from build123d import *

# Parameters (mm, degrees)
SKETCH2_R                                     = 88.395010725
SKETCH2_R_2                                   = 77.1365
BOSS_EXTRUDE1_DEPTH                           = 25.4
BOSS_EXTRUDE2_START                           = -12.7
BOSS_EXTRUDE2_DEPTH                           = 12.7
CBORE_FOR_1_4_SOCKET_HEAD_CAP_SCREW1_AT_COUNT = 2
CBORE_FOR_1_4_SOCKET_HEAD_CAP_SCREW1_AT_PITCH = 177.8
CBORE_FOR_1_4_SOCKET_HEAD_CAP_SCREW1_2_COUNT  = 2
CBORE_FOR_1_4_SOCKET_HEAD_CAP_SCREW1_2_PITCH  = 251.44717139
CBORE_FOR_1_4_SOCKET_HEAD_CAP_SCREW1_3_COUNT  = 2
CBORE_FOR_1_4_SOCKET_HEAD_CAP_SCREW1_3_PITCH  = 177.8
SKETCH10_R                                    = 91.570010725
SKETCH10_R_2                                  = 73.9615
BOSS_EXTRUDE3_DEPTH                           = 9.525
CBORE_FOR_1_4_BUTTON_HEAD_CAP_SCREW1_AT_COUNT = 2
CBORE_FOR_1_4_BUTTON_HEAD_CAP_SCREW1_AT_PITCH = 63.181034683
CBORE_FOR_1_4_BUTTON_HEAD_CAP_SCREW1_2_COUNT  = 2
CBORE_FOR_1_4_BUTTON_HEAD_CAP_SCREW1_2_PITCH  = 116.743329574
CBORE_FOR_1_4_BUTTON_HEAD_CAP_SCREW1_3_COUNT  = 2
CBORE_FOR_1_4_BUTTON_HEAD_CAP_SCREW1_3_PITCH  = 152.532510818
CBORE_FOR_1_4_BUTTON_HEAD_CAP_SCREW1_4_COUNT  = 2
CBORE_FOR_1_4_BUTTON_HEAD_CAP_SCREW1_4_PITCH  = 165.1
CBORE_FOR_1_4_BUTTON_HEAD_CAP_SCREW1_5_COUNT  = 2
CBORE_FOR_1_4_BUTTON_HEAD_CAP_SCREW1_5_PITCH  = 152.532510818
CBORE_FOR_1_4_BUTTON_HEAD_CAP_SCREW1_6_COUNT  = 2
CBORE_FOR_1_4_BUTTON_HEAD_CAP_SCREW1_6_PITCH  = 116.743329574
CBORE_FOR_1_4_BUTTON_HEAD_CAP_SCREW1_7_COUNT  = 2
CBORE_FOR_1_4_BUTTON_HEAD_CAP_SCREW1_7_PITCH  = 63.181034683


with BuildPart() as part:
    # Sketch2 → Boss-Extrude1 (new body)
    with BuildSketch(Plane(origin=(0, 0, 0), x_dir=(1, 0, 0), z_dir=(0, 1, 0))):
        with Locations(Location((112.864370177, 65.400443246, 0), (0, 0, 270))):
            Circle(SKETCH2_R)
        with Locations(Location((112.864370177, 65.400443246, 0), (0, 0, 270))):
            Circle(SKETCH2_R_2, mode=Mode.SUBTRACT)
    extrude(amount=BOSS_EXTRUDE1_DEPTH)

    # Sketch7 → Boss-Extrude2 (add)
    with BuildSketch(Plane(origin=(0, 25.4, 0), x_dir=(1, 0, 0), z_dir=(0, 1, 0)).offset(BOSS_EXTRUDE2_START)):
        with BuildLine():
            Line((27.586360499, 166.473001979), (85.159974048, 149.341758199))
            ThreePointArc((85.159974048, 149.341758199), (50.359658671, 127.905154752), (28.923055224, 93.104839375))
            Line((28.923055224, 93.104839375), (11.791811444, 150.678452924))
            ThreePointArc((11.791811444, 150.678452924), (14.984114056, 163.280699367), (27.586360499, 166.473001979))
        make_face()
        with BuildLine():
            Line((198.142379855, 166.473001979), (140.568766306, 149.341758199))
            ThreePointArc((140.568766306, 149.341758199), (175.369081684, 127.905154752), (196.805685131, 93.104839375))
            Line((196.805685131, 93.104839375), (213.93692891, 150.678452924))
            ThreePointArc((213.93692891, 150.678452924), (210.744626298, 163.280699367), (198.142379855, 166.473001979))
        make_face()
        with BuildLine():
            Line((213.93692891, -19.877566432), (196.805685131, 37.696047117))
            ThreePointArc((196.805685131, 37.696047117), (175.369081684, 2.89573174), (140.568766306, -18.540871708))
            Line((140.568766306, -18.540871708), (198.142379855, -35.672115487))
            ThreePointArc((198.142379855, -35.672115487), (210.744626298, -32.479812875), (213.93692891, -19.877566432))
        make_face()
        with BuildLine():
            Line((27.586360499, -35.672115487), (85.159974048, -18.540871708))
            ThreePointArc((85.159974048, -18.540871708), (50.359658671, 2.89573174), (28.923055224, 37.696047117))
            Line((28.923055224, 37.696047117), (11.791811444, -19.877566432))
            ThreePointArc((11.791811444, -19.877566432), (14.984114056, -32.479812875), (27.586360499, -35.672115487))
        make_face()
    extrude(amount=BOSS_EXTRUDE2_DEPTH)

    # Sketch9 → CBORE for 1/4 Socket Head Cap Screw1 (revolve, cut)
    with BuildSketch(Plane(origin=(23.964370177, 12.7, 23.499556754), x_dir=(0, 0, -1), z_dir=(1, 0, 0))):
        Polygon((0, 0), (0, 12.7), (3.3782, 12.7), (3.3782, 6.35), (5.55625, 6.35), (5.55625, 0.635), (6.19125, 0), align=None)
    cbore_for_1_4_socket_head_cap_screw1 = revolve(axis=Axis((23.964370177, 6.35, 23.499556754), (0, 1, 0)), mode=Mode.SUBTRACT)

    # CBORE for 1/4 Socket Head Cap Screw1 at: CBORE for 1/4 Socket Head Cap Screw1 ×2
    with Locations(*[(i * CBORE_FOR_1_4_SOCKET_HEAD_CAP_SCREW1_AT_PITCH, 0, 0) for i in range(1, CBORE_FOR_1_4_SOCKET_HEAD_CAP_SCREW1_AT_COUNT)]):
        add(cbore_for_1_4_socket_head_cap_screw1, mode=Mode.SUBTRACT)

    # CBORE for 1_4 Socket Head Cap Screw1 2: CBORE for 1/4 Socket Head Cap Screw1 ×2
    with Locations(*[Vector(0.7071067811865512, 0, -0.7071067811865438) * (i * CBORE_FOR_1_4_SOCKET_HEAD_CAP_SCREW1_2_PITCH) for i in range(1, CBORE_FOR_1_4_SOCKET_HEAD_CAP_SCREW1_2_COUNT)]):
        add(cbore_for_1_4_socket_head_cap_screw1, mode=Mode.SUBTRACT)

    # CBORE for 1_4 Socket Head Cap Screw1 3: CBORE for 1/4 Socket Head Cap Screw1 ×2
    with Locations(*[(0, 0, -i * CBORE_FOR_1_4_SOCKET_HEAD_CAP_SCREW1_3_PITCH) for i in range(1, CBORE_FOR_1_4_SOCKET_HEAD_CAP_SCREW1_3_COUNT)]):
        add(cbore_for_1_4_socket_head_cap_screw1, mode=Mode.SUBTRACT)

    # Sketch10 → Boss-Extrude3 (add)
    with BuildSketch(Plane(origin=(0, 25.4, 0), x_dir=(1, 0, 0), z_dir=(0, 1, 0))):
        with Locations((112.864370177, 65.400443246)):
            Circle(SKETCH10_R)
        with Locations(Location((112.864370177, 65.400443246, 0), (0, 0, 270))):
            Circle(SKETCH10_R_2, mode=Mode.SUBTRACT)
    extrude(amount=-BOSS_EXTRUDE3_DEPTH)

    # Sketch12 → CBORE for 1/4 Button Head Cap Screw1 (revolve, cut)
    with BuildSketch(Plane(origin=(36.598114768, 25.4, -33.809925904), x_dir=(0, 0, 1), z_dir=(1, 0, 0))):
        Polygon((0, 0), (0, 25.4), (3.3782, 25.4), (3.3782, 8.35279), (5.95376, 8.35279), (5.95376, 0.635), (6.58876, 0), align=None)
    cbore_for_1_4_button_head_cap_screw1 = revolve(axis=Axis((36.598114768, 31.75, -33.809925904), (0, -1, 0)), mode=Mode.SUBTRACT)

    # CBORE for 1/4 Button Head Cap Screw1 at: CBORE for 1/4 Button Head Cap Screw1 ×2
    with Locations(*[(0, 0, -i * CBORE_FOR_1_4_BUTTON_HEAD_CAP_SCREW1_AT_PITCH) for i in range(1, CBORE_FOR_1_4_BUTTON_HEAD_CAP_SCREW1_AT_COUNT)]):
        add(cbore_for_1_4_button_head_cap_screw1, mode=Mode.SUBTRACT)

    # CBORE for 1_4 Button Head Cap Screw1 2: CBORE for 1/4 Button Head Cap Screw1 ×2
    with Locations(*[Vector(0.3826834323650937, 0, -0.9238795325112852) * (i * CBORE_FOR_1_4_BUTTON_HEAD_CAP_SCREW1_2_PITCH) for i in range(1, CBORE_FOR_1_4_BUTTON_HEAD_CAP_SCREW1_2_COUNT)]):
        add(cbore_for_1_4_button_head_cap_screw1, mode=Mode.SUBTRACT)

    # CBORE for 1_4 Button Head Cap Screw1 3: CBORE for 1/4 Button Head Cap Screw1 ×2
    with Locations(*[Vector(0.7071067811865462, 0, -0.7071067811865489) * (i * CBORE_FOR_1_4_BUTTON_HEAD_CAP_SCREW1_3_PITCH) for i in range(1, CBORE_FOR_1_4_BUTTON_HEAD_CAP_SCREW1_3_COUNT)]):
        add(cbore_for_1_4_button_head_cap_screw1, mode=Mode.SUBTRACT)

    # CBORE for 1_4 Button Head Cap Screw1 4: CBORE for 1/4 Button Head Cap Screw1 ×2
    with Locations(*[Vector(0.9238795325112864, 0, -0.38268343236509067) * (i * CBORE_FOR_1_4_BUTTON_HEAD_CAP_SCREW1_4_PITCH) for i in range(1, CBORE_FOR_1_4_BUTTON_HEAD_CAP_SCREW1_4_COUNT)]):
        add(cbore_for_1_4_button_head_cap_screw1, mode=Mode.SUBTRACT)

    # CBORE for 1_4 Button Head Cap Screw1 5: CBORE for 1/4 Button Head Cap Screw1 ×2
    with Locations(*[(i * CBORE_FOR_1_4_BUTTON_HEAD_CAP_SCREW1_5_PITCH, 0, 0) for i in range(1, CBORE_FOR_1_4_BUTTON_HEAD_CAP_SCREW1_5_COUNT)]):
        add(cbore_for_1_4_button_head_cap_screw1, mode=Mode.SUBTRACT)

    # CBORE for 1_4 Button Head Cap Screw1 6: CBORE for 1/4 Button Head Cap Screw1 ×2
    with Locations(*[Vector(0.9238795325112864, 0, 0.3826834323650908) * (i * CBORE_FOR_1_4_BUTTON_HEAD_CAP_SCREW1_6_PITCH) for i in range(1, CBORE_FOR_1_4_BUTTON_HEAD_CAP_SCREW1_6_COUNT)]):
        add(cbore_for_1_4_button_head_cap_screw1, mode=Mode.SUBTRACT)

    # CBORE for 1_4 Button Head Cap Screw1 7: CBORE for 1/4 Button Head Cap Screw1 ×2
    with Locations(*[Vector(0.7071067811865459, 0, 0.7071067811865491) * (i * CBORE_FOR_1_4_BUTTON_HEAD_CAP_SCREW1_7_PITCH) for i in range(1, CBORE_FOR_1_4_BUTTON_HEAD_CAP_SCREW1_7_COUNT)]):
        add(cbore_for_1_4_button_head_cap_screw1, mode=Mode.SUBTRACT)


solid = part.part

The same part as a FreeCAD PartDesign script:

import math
import FreeCAD as App
import Part
import Sketcher
Q = App.Units.Quantity


def add_polygon(sketch, points):
    """Adds a closed chain of lines whose ends are joined by coincident constraints."""
    first, n = sketch.GeometryCount, len(points)
    for a, b in zip(points, points[1:] + points[:1]):
        sketch.addGeometry(Part.LineSegment(App.Vector(*a, 0), App.Vector(*b, 0)), False)
    for i in range(n):
        sketch.addConstraint(Sketcher.Constraint("Coincident", first + i, 2, first + (i + 1) % n, 1))

doc = App.newDocument("Part")
body = doc.addObject("PartDesign::Body", "Body")

sketch1 = doc.addObject("Sketcher::SketchObject", "Sketch")
body.addObject(sketch1)
sketch1.AttachmentSupport = (doc.XZ_Plane, [""])
sketch1.MapMode = "FlatFace"
sketch1.addGeometry(Part.Circle(App.Vector(113, -65, 0), App.Vector(0, 0, 1), 88), False)
sketch1.addGeometry(Part.Circle(App.Vector(113, -65, 0), App.Vector(0, 0, 1), 77), False)
sketch1.addConstraint(Sketcher.Constraint("Coincident", 1, 3, 0, 3))
sketch1.addConstraint(Sketcher.Constraint("Diameter", 1, Q("154.273 mm")))
sketch1.addConstraint(Sketcher.Constraint("Diameter", 0, Q("176.790021 mm")))
sketch1.addConstraint(Sketcher.Constraint("DistanceX", -1, 1, 0, 3, Q("112.86437 mm")))
sketch1.addConstraint(Sketcher.Constraint("DistanceY", 0, 3, -1, 1, Q("65.400443 mm")))
pad1 = doc.addObject("PartDesign::Pad", "Pad")
body.addObject(pad1)
pad1.Profile = sketch1
pad1.Length = Q("1 in")
pad1.Reversed = True

sketch2 = doc.addObject("Sketcher::SketchObject", "Sketch001")
body.addObject(sketch2)
sketch2.AttachmentSupport = (doc.XZ_Plane, [""])
sketch2.MapMode = "FlatFace"
sketch2.AttachmentOffset = App.Placement(App.Vector(0, 0, -0.5 * 25.4), App.Rotation())
sketch2.addGeometry(Part.LineSegment(App.Vector(85, -149, 0), App.Vector(28, -166, 0)), False)
sketch2.addGeometry(Part.ArcOfCircle(Part.Circle(App.Vector(24, -154, 0), App.Vector(0, 0, 1), 13), math.radians(163), math.radians(287)), False)
sketch2.addGeometry(Part.LineSegment(App.Vector(12, -151, 0), App.Vector(29, -93, 0)), False)
sketch2.addGeometry(Part.ArcOfCircle(Part.Circle(App.Vector(113, -65, 0), App.Vector(0, 0, 1), 88), math.radians(-162), math.radians(-108)), False)
sketch2.addGeometry(Part.LineSegment(App.Vector(198, -166, 0), App.Vector(141, -149, 0)), False)
sketch2.addGeometry(Part.ArcOfCircle(Part.Circle(App.Vector(113, -65, 0), App.Vector(0, 0, 1), 88), math.radians(-72), math.radians(-18)), False)
sketch2.addGeometry(Part.LineSegment(App.Vector(197, -93, 0), App.Vector(214, -151, 0)), False)
sketch2.addGeometry(Part.ArcOfCircle(Part.Circle(App.Vector(202, -154, 0), App.Vector(0, 0, 1), 13), math.radians(-107), math.radians(17)), False)
sketch2.addGeometry(Part.LineSegment(App.Vector(214, 20, 0), App.Vector(197, -38, 0)), False)
sketch2.addGeometry(Part.ArcOfCircle(Part.Circle(App.Vector(113, -65, 0), App.Vector(0, 0, 1), 88), math.radians(18), math.radians(72)), False)
sketch2.addGeometry(Part.LineSegment(App.Vector(141, 19, 0), App.Vector(198, 36, 0)), False)
sketch2.addGeometry(Part.ArcOfCircle(Part.Circle(App.Vector(202, 23, 0), App.Vector(0, 0, 1), 13), math.radians(-17), math.radians(107)), False)
sketch2.addGeometry(Part.LineSegment(App.Vector(28, 36, 0), App.Vector(85, 19, 0)), False)
sketch2.addGeometry(Part.ArcOfCircle(Part.Circle(App.Vector(113, -65, 0), App.Vector(0, 0, 1), 88), math.radians(108), math.radians(162)), False)
sketch2.addGeometry(Part.LineSegment(App.Vector(29, -38, 0), App.Vector(12, 20, 0)), False)
sketch2.addGeometry(Part.ArcOfCircle(Part.Circle(App.Vector(24, 23, 0), App.Vector(0, 0, 1), 13), math.radians(73), math.radians(197)), False)
sketch2.addConstraint(Sketcher.Constraint("Tangent", 0, 2, 1, 2))
sketch2.addConstraint(Sketcher.Constraint("Tangent", 1, 1, 2, 1))
sketch2.addConstraint(Sketcher.Constraint("Coincident", 2, 2, 3, 1))
sketch2.addConstraint(Sketcher.Constraint("Coincident", 3, 2, 0, 1))
sketch2.addConstraint(Sketcher.Constraint("Coincident", 4, 2, 5, 1))
sketch2.addConstraint(Sketcher.Constraint("Coincident", 5, 2, 6, 1))
sketch2.addConstraint(Sketcher.Constraint("Tangent", 6, 2, 7, 2))
sketch2.addConstraint(Sketcher.Constraint("Tangent", 7, 1, 4, 1))
sketch2.addConstraint(Sketcher.Constraint("Coincident", 8, 2, 9, 1))
sketch2.addConstraint(Sketcher.Constraint("Coincident", 9, 2, 10, 1))
sketch2.addConstraint(Sketcher.Constraint("Tangent", 10, 2, 11, 2))
sketch2.addConstraint(Sketcher.Constraint("Tangent", 11, 1, 8, 1))
sketch2.addConstraint(Sketcher.Constraint("Coincident", 12, 2, 13, 1))
sketch2.addConstraint(Sketcher.Constraint("Coincident", 13, 2, 14, 1))
sketch2.addConstraint(Sketcher.Constraint("Tangent", 14, 2, 15, 2))
sketch2.addConstraint(Sketcher.Constraint("Tangent", 15, 1, 12, 1))
sketch2.addConstraint(Sketcher.Constraint("Coincident", 5, 3, 3, 3))
sketch2.addConstraint(Sketcher.Constraint("Coincident", 9, 3, 3, 3))
sketch2.addConstraint(Sketcher.Constraint("Coincident", 13, 3, 3, 3))
sketch2.addConstraint(Sketcher.Constraint("Equal", 3, 5))
sketch2.addConstraint(Sketcher.Constraint("Equal", 1, 7))
sketch2.addConstraint(Sketcher.Constraint("Equal", 5, 9))
sketch2.addConstraint(Sketcher.Constraint("Equal", 7, 11))
sketch2.addConstraint(Sketcher.Constraint("Equal", 9, 13))
sketch2.addConstraint(Sketcher.Constraint("Equal", 11, 15))
sketch2.addConstraint(Sketcher.Constraint("Perpendicular", 2, 4))
sketch2.addConstraint(Sketcher.Constraint("Perpendicular", 0, 6))
sketch2.addConstraint(Sketcher.Constraint("Perpendicular", 4, 8))
sketch2.addConstraint(Sketcher.Constraint("Perpendicular", 6, 10))
sketch2.addConstraint(Sketcher.Constraint("Perpendicular", 8, 12))
sketch2.addConstraint(Sketcher.Constraint("Perpendicular", 10, 14))
sketch2.addConstraint(Sketcher.Constraint("Horizontal", 1, 3, 7, 3))
sketch2.addConstraint(Sketcher.Constraint("Horizontal", 11, 3, 15, 3))
sketch2.addConstraint(Sketcher.Constraint("Horizontal", 3, 2, 4, 2))
sketch2.addConstraint(Sketcher.Constraint("Horizontal", 2, 2, 5, 2))
sketch2.addConstraint(Sketcher.Constraint("Horizontal", 9, 2, 12, 2))
sketch2.addConstraint(Sketcher.Constraint("Vertical", 7, 3, 11, 3))
sketch2.addConstraint(Sketcher.Constraint("Vertical", 5, 2, 8, 2))
sketch2.addConstraint(Sketcher.Constraint("Equal", 0, 2))
sketch2.addConstraint(Sketcher.Constraint("Radius", 1, Q("0.5 in")))
sketch2.addConstraint(Sketcher.Constraint("DistanceX", 1, 3, 7, 3, Q("7 in")))
sketch2.addConstraint(Sketcher.Constraint("Radius", 3, Q("88.395011 mm")))
sketch2.addConstraint(Sketcher.Constraint("Distance", 0, Q("60.068299 mm")))
sketch2.addConstraint(Sketcher.Constraint("DistanceY", 0, 2, -1, 1, Q("166.473002 mm")))
sketch2.addConstraint(Sketcher.Constraint("DistanceX", -1, 1, 1, 3, Q("23.96437 mm")))
pad2 = doc.addObject("PartDesign::Pad", "Pad001")
body.addObject(pad2)
pad2.Profile = sketch2
pad2.Length = Q("0.5 in")
pad2.Reversed = True

sketch3 = doc.addObject("Sketcher::SketchObject", "Sketch002")
body.addObject(sketch3)
sketch3.AttachmentSupport = (doc.YZ_Plane, [""])
sketch3.MapMode = "FlatFace"
sketch3.AttachmentOffset = App.Placement(App.Vector(0, 0, 23.96437), App.Rotation())
add_polygon(sketch3, [(25.4, 23.5), (12.7, 23.5), (12.7, 17.3), (13.3, 17.9), (19.1, 17.9), (19.1, 20.1), (25.4, 20.1)])
sketch3.addGeometry(Part.LineSegment(App.Vector(12.7, 23.5, 0), App.Vector(25.4, 23.5, 0)), True)
sketch3.addConstraint(Sketcher.Constraint("Horizontal", 0))
sketch3.addConstraint(Sketcher.Constraint("Vertical", 1))
sketch3.addConstraint(Sketcher.Constraint("Horizontal", 3))
sketch3.addConstraint(Sketcher.Constraint("Vertical", 4))
sketch3.addConstraint(Sketcher.Constraint("Horizontal", 5))
sketch3.addConstraint(Sketcher.Constraint("Vertical", 6))
sketch3.addConstraint(Sketcher.Constraint("Horizontal", 7))
sketch3.addConstraint(Sketcher.Constraint("Coincident", 7, 1, 0, 2))
sketch3.addConstraint(Sketcher.Constraint("Vertical", 5, 2, 7, 2))
sketch3.addConstraint(Sketcher.Constraint("DistanceX", 0, 2, 0, 1, Q("0.5 in")))
sketch3.addConstraint(Sketcher.Constraint("DistanceX", -1, 1, 5, 2, Q("1 in")))
sketch3.addConstraint(Sketcher.Constraint("Angle", 2, Q("45 deg")))
sketch3.addConstraint(Sketcher.Constraint("DistanceX", 5, 1, 5, 2, Q("0.25 in")))
sketch3.addConstraint(Sketcher.Constraint("DistanceX", 3, 1, 3, 2, Q("0.225 in")))
sketch3.addConstraint(Sketcher.Constraint("DistanceY", 6, 1, 6, 2, Q("0.133 in")))
sketch3.addConstraint(Sketcher.Constraint("DistanceY", 2, 2, 0, 2, Q("0.21875 in")))
sketch3.addConstraint(Sketcher.Constraint("DistanceY", -1, 1, 0, 2, Q("23.499557 mm")))
groove = doc.addObject("PartDesign::Groove", "Groove")
body.addObject(groove)
groove.Profile = sketch3
groove.ReferenceAxis = (sketch3, ["Axis0"])
groove.Angle = 360
doc.recompute()

linearpattern = doc.addObject("PartDesign::LinearPattern", "LinearPattern")
body.addObject(linearpattern)
linearpattern.Originals = [groove]
linearpattern.Direction = (doc.X_Axis, [""])
linearpattern.Mode = "offset"
linearpattern.Offset = Q("7 in")
linearpattern.Occurrences = 2
body.Tip = linearpattern
doc.recompute()

datumline = doc.addObject("PartDesign::Line", "DatumLine")
body.addObject(datumline)
datumline.Placement = App.Placement(App.Vector(0, 0, 0), App.Rotation(App.Vector(0, 0, 1), App.Vector(0.707106781, 0, -0.707106781)))
linearpattern2 = doc.addObject("PartDesign::LinearPattern", "LinearPattern001")
body.addObject(linearpattern2)
linearpattern2.Originals = [groove]
linearpattern2.Direction = (datumline, [""])
linearpattern2.Mode = "offset"
linearpattern2.Offset = 251.447171
linearpattern2.Occurrences = 2
body.Tip = linearpattern2
doc.recompute()

linearpattern3 = doc.addObject("PartDesign::LinearPattern", "LinearPattern002")
body.addObject(linearpattern3)
linearpattern3.Originals = [groove]
linearpattern3.Direction = (doc.Z_Axis, [""])
linearpattern3.Mode = "offset"
linearpattern3.Offset = Q("7 in")
linearpattern3.Occurrences = 2
linearpattern3.Reversed = True
body.Tip = linearpattern3

sketch4 = doc.addObject("Sketcher::SketchObject", "Sketch003")
body.addObject(sketch4)
sketch4.AttachmentSupport = (doc.XZ_Plane, [""])
sketch4.MapMode = "FlatFace"
sketch4.AttachmentOffset = App.Placement(App.Vector(0, 0, -1 * 25.4), App.Rotation())
sketch4.addGeometry(Part.Circle(App.Vector(113, -65, 0), App.Vector(0, 0, 1), 92), False)
sketch4.addGeometry(Part.Circle(App.Vector(113, -65, 0), App.Vector(0, 0, 1), 74), False)
sketch4.addConstraint(Sketcher.Constraint("Coincident", 1, 3, 0, 3))
sketch4.addConstraint(Sketcher.Constraint("Diameter", 1, Q("147.923 mm")))
sketch4.addConstraint(Sketcher.Constraint("Diameter", 0, Q("183.140021 mm")))
sketch4.addConstraint(Sketcher.Constraint("DistanceX", -1, 1, 0, 3, Q("112.86437 mm")))
sketch4.addConstraint(Sketcher.Constraint("DistanceY", 0, 3, -1, 1, Q("65.400443 mm")))
pad3 = doc.addObject("PartDesign::Pad", "Pad002")
body.addObject(pad3)
pad3.Profile = sketch4
pad3.Length = Q("0.375 in")

sketch5 = doc.addObject("Sketcher::SketchObject", "Sketch004")
body.addObject(sketch5)
sketch5.AttachmentSupport = (doc.YZ_Plane, [""])
sketch5.MapMode = "FlatFace"
sketch5.AttachmentOffset = App.Placement(App.Vector(0, 0, 36.598115), App.Rotation())
add_polygon(sketch5, [(0, -33.8), (25.4, -33.8), (25.4, -27.2), (24.8, -27.9), (17, -27.9), (17, -30.4), (0, -30.4)])
sketch5.addGeometry(Part.LineSegment(App.Vector(25.4, -33.8, 0), App.Vector(0, -33.8, 0)), True)
sketch5.addConstraint(Sketcher.Constraint("Horizontal", 0))
sketch5.addConstraint(Sketcher.Constraint("Vertical", 1))
sketch5.addConstraint(Sketcher.Constraint("Horizontal", 3))
sketch5.addConstraint(Sketcher.Constraint("Vertical", 4))
sketch5.addConstraint(Sketcher.Constraint("Horizontal", 5))
sketch5.addConstraint(Sketcher.Constraint("Vertical", 6))
sketch5.addConstraint(Sketcher.Constraint("Horizontal", 7))
sketch5.addConstraint(Sketcher.Constraint("Coincident", 7, 1, 0, 2))
sketch5.addConstraint(Sketcher.Constraint("PointOnObject", 5, 2, -2))
sketch5.addConstraint(Sketcher.Constraint("PointOnObject", 7, 2, -2))
sketch5.addConstraint(Sketcher.Constraint("DistanceX", 0, 1, 0, 2, Q("1 in")))
sketch5.addConstraint(Sketcher.Constraint("Angle", 2, Q("-135 deg")))
sketch5.addConstraint(Sketcher.Constraint("DistanceY", 6, 2, 6, 1, Q("0.133 in")))
sketch5.addConstraint(Sketcher.Constraint("DistanceY", 1, 1, 1, 2, Q("0.2594 in")))
sketch5.addConstraint(Sketcher.Constraint("DistanceY", 4, 2, 4, 1, Q("0.1014 in")))
sketch5.addConstraint(Sketcher.Constraint("DistanceX", 3, 2, 3, 1, Q("7.71779 mm")))
sketch5.addConstraint(Sketcher.Constraint("DistanceY", 0, 2, -1, 1, Q("33.809926 mm")))
groove2 = doc.addObject("PartDesign::Groove", "Groove001")
body.addObject(groove2)
groove2.Profile = sketch5
groove2.ReferenceAxis = (sketch5, ["Axis0"])
groove2.Angle = 360
doc.recompute()

linearpattern4 = doc.addObject("PartDesign::LinearPattern", "LinearPattern003")
body.addObject(linearpattern4)
linearpattern4.Originals = [groove2]
linearpattern4.Direction = (doc.Z_Axis, [""])
linearpattern4.Mode = "offset"
linearpattern4.Offset = 63.181035
linearpattern4.Occurrences = 2
linearpattern4.Reversed = True
body.Tip = linearpattern4
doc.recompute()

datumline2 = doc.addObject("PartDesign::Line", "DatumLine001")
body.addObject(datumline2)
datumline2.Placement = App.Placement(App.Vector(0, 0, 0), App.Rotation(App.Vector(0, 0, 1), App.Vector(0.382683432, 0, -0.923879533)))
linearpattern5 = doc.addObject("PartDesign::LinearPattern", "LinearPattern004")
body.addObject(linearpattern5)
linearpattern5.Originals = [groove2]
linearpattern5.Direction = (datumline2, [""])
linearpattern5.Mode = "offset"
linearpattern5.Offset = 116.74333
linearpattern5.Occurrences = 2
body.Tip = linearpattern5
doc.recompute()

datumline3 = doc.addObject("PartDesign::Line", "DatumLine002")
body.addObject(datumline3)
datumline3.Placement = App.Placement(App.Vector(0, 0, 0), App.Rotation(App.Vector(0, 0, 1), App.Vector(0.707106781, 0, -0.707106781)))
linearpattern6 = doc.addObject("PartDesign::LinearPattern", "LinearPattern005")
body.addObject(linearpattern6)
linearpattern6.Originals = [groove2]
linearpattern6.Direction = (datumline3, [""])
linearpattern6.Mode = "offset"
linearpattern6.Offset = 152.532511
linearpattern6.Occurrences = 2
body.Tip = linearpattern6
doc.recompute()

datumline4 = doc.addObject("PartDesign::Line", "DatumLine003")
body.addObject(datumline4)
datumline4.Placement = App.Placement(App.Vector(0, 0, 0), App.Rotation(App.Vector(0, 0, 1), App.Vector(0.923879533, 0, -0.382683432)))
linearpattern7 = doc.addObject("PartDesign::LinearPattern", "LinearPattern006")
body.addObject(linearpattern7)
linearpattern7.Originals = [groove2]
linearpattern7.Direction = (datumline4, [""])
linearpattern7.Mode = "offset"
linearpattern7.Offset = Q("6.5 in")
linearpattern7.Occurrences = 2
body.Tip = linearpattern7
doc.recompute()

linearpattern8 = doc.addObject("PartDesign::LinearPattern", "LinearPattern007")
body.addObject(linearpattern8)
linearpattern8.Originals = [groove2]
linearpattern8.Direction = (doc.X_Axis, [""])
linearpattern8.Mode = "offset"
linearpattern8.Offset = 152.532511
linearpattern8.Occurrences = 2
body.Tip = linearpattern8
doc.recompute()

datumline5 = doc.addObject("PartDesign::Line", "DatumLine004")
body.addObject(datumline5)
datumline5.Placement = App.Placement(App.Vector(0, 0, 0), App.Rotation(App.Vector(0, 0, 1), App.Vector(0.923879533, 0, 0.382683432)))
linearpattern9 = doc.addObject("PartDesign::LinearPattern", "LinearPattern008")
body.addObject(linearpattern9)
linearpattern9.Originals = [groove2]
linearpattern9.Direction = (datumline5, [""])
linearpattern9.Mode = "offset"
linearpattern9.Offset = 116.74333
linearpattern9.Occurrences = 2
body.Tip = linearpattern9
doc.recompute()

datumline6 = doc.addObject("PartDesign::Line", "DatumLine005")
body.addObject(datumline6)
datumline6.Placement = App.Placement(App.Vector(0, 0, 0), App.Rotation(App.Vector(0, 0, 1), App.Vector(0.707106781, 0, 0.707106781)))
linearpattern10 = doc.addObject("PartDesign::LinearPattern", "LinearPattern009")
body.addObject(linearpattern10)
linearpattern10.Originals = [groove2]
linearpattern10.Direction = (datumline6, [""])
linearpattern10.Mode = "offset"
linearpattern10.Offset = 63.181035
linearpattern10.Occurrences = 2
body.Tip = linearpattern10

doc.recompute()
